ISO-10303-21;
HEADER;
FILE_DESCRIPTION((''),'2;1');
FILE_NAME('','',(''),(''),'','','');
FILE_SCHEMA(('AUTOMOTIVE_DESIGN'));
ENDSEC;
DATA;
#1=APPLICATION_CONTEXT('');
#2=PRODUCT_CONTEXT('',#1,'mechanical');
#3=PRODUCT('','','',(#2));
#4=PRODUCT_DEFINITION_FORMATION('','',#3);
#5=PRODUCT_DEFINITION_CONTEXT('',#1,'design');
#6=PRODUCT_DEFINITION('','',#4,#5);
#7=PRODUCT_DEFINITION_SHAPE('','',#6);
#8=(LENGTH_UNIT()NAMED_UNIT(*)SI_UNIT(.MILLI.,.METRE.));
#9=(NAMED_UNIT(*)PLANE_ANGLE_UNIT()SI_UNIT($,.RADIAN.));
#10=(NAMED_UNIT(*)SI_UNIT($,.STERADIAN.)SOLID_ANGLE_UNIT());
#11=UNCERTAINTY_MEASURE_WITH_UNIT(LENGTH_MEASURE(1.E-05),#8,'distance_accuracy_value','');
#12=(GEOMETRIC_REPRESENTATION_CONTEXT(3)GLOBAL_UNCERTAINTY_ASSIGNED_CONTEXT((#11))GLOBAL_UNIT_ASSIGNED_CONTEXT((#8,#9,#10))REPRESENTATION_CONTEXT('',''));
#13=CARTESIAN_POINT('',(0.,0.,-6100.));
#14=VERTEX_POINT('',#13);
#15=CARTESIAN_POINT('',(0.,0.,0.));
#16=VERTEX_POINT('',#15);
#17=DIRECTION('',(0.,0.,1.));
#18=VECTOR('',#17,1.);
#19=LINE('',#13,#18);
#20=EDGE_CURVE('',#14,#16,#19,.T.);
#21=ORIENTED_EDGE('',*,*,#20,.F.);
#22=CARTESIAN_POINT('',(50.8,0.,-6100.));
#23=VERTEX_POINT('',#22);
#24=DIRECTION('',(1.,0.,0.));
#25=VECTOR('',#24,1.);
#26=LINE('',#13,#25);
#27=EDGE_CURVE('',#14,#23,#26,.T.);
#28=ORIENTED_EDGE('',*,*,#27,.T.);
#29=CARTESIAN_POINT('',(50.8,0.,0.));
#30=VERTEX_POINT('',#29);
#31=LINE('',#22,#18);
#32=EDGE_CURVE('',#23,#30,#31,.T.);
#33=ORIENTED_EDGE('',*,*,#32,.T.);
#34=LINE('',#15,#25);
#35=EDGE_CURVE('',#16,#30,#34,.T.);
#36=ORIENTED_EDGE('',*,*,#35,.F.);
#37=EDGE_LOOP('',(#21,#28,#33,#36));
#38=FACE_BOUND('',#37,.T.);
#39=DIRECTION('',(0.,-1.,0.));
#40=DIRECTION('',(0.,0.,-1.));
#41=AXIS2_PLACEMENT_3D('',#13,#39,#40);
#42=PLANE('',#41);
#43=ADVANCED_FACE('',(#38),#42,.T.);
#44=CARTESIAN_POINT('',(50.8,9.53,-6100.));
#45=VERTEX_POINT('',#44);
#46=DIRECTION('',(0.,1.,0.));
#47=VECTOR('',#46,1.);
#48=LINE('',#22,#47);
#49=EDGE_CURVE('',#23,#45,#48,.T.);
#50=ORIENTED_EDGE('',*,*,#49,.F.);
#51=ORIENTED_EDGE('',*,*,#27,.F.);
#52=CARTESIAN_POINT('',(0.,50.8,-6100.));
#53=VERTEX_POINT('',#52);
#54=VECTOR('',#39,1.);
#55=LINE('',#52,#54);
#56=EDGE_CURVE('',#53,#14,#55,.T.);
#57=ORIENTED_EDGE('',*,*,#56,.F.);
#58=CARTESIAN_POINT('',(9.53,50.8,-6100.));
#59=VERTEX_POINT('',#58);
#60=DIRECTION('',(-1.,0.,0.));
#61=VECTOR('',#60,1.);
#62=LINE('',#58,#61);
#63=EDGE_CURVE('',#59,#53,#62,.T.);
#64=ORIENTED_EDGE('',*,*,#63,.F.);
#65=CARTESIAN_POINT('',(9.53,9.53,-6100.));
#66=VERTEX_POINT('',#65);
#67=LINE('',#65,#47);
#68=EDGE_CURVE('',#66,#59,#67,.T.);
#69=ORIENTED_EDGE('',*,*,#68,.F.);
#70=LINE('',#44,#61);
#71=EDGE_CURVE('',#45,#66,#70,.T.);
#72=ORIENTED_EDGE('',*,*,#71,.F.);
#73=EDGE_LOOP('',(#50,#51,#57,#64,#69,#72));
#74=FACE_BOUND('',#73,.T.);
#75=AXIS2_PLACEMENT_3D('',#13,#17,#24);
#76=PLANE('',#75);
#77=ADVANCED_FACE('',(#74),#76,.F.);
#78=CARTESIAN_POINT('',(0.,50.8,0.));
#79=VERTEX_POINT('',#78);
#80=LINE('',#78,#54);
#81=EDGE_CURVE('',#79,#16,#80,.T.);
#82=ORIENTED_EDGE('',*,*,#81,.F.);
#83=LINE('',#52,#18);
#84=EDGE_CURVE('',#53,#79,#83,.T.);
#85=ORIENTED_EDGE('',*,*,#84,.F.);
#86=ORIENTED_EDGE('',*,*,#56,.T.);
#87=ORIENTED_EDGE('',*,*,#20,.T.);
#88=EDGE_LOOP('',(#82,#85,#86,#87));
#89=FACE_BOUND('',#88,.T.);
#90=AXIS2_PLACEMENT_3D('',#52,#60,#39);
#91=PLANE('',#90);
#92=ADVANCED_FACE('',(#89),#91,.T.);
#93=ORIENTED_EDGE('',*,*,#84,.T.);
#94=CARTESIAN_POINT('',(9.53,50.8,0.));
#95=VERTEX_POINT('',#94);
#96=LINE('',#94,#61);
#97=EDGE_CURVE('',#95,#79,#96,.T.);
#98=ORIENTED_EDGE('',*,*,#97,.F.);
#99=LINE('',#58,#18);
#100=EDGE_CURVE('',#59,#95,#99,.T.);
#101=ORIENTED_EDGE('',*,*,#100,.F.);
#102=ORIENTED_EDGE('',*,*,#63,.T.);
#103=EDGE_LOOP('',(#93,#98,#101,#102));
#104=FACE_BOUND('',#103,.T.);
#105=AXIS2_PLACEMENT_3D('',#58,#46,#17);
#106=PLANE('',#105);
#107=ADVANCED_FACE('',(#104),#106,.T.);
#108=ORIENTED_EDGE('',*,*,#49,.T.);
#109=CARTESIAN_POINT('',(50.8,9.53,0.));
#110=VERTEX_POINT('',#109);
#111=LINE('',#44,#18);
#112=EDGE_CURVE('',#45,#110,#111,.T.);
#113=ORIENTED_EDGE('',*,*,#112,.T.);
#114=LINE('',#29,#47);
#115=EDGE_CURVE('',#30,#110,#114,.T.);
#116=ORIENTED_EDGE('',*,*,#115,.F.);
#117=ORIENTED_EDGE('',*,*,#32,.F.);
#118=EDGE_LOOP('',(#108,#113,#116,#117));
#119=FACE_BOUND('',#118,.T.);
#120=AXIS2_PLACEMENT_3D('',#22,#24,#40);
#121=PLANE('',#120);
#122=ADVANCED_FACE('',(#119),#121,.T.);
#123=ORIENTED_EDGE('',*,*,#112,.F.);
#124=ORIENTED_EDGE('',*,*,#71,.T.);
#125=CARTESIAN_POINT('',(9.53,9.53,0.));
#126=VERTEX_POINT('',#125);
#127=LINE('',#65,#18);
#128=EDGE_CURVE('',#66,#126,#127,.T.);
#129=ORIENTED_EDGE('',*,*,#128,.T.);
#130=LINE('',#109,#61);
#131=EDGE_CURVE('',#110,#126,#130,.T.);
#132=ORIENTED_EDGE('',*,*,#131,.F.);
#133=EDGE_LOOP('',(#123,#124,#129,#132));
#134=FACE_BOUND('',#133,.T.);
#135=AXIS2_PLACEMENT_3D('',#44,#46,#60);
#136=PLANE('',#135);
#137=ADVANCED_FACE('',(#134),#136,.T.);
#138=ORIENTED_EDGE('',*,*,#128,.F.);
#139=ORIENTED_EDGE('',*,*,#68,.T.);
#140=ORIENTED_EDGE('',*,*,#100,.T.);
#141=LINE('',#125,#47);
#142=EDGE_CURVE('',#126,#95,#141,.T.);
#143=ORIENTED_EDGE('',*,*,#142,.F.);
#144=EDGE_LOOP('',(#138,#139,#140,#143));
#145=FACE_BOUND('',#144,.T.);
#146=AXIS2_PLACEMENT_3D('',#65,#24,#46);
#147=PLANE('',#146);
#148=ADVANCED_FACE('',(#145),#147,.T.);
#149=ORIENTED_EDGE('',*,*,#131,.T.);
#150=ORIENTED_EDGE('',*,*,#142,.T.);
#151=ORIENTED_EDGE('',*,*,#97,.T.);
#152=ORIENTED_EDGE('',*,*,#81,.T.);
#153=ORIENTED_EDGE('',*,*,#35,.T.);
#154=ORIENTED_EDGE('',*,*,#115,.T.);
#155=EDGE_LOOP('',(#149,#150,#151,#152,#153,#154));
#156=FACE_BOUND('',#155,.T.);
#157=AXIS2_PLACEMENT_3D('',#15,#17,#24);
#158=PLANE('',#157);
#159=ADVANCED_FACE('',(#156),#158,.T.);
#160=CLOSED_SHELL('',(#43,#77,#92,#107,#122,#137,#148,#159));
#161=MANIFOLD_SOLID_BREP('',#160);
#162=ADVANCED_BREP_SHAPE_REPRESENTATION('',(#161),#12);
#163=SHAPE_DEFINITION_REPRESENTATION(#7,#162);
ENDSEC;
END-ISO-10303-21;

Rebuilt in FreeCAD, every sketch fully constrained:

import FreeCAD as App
import Part
import Sketcher
from FreeCAD import Vector
Q = App.Units.Quantity


def add_polygon(sketch, points):
    """Adds a closed chain of lines whose ends are joined by coincident constraints."""
    first, n = sketch.GeometryCount, len(points)
    for a, b in zip(points, points[1:] + points[:1]):
        sketch.addGeometry(Part.LineSegment(App.Vector(*a, 0), App.Vector(*b, 0)), False)
    for i in range(n):
        sketch.addConstraint(Sketcher.Constraint("Coincident", first + i, 2, first + (i + 1) % n, 1))

doc = App.newDocument("Part")
body = doc.addObject("PartDesign::Body", "Body")

sketch1 = body.newObject("Sketcher::SketchObject", "Sketch")
sketch1.AttachmentSupport = (doc.getObject("XY_Plane"), [""])
sketch1.MapMode = "FlatFace"
add_polygon(sketch1, [(0, 50.8), (0, 0), (50.8, 0), (50.8, 9.53), (9.53, 9.53), (9.53, 50.8)])
sketch1.addConstraint(Sketcher.Constraint("Vertical", 0))
sketch1.addConstraint(Sketcher.Constraint("Horizontal", 1))
sketch1.addConstraint(Sketcher.Constraint("Vertical", 2))
sketch1.addConstraint(Sketcher.Constraint("Horizontal", 3))
sketch1.addConstraint(Sketcher.Constraint("Vertical", 4))
sketch1.addConstraint(Sketcher.Constraint("Horizontal", 5))
sketch1.addConstraint(Sketcher.Constraint("Coincident", 0, 2, -1, 1))
sketch1.addConstraint(Sketcher.Constraint("Equal", 1, 0))
sketch1.addConstraint(Sketcher.Constraint("Equal", 5, 2))
sketch1.addConstraint(Sketcher.Constraint("DistanceX", 1, 1, 1, 2, Q("50.8 mm")))
sketch1.addConstraint(Sketcher.Constraint("DistanceX", 3, 2, 3, 1, Q("41.27 mm")))
pad1 = body.newObject("PartDesign::Pad", "Pad")
pad1.Profile = sketch1
pad1.Length = 6100
pad1.Reversed = True

doc.recompute()
